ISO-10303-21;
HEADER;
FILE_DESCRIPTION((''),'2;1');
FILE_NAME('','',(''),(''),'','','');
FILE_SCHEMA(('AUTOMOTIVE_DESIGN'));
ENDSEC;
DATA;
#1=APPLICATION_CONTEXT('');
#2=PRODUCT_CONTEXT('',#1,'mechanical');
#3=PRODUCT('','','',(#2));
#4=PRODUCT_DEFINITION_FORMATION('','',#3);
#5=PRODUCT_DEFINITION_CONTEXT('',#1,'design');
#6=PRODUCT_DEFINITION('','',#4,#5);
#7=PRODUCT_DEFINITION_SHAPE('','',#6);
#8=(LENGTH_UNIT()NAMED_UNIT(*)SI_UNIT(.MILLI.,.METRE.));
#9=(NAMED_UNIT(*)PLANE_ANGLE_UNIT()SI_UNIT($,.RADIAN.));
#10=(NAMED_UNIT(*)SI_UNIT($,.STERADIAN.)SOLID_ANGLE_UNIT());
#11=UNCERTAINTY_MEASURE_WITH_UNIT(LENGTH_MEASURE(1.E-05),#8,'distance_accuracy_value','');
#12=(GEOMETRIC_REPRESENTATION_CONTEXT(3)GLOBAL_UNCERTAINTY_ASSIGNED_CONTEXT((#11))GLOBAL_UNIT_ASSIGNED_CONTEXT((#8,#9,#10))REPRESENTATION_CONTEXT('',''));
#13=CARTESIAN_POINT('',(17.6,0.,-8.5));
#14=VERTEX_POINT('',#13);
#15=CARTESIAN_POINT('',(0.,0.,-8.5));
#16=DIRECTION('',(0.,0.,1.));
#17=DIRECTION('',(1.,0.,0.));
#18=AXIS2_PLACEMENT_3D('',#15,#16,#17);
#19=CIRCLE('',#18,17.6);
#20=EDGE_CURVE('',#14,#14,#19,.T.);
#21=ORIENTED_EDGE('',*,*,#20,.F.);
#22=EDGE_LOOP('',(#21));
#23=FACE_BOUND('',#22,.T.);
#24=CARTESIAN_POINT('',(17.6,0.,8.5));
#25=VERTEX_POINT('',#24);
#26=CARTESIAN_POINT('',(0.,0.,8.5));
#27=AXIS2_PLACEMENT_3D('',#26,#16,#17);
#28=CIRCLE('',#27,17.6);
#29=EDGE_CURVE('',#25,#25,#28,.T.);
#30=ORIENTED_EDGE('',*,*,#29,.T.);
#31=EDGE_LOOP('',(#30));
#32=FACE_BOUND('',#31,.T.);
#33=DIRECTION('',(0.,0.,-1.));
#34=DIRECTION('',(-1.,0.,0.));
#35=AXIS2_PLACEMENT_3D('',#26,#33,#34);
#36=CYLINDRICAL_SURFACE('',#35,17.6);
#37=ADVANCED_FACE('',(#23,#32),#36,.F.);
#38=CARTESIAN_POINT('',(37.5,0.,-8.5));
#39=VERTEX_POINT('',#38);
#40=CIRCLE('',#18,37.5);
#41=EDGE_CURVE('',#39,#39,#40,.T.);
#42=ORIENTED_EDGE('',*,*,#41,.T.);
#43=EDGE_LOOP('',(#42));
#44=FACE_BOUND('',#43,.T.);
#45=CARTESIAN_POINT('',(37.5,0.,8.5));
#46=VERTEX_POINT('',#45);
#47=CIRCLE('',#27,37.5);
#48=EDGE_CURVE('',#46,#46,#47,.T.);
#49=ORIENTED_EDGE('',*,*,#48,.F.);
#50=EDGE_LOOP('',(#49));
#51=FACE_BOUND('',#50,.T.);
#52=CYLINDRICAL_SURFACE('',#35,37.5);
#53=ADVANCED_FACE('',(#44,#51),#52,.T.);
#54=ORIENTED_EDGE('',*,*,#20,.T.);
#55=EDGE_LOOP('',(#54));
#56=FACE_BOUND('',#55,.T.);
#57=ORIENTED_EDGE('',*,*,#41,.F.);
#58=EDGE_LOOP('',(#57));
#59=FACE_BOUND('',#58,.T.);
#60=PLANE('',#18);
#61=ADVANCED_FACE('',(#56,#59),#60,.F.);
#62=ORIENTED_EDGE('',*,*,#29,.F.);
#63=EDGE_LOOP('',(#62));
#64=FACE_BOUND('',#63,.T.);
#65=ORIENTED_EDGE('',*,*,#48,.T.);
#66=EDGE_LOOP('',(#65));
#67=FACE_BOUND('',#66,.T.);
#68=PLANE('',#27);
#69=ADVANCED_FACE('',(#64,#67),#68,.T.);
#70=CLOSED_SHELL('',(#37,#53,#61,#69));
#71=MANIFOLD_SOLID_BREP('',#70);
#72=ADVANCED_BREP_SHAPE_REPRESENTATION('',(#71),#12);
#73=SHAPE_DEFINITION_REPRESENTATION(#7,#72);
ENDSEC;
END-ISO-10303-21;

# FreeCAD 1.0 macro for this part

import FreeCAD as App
import Part
import Sketcher
from FreeCAD import Vector

doc = App.newDocument("Part")
body = doc.addObject("PartDesign::Body", "Body")

sketch1 = body.newObject("Sketcher::SketchObject", "Sketch")
sketch1.AttachmentSupport = (doc.getObject("XY_Plane"), [""])
sketch1.MapMode = "FlatFace"
sketch1.addGeometry([
    Part.Circle(Vector(0, 0, 0), Vector(0, 0, 1), 37.5),
    Part.Circle(Vector(0, 0, 0), Vector(0, 0, 1), 17.6),
], False)
sketch1.addConstraint([
    Sketcher.Constraint("Coincident", 0, 3, -1, 1),
    Sketcher.Constraint("Coincident", 1, 3, -1, 1),
    Sketcher.Constraint("Diameter", 0, 75.0),
    Sketcher.Constraint("Diameter", 1, 35.2),
])
pad1 = body.newObject("PartDesign::Pad", "Pad")
pad1.Profile = sketch1
pad1.Length = 17
pad1.Midplane = True

doc.recompute()
